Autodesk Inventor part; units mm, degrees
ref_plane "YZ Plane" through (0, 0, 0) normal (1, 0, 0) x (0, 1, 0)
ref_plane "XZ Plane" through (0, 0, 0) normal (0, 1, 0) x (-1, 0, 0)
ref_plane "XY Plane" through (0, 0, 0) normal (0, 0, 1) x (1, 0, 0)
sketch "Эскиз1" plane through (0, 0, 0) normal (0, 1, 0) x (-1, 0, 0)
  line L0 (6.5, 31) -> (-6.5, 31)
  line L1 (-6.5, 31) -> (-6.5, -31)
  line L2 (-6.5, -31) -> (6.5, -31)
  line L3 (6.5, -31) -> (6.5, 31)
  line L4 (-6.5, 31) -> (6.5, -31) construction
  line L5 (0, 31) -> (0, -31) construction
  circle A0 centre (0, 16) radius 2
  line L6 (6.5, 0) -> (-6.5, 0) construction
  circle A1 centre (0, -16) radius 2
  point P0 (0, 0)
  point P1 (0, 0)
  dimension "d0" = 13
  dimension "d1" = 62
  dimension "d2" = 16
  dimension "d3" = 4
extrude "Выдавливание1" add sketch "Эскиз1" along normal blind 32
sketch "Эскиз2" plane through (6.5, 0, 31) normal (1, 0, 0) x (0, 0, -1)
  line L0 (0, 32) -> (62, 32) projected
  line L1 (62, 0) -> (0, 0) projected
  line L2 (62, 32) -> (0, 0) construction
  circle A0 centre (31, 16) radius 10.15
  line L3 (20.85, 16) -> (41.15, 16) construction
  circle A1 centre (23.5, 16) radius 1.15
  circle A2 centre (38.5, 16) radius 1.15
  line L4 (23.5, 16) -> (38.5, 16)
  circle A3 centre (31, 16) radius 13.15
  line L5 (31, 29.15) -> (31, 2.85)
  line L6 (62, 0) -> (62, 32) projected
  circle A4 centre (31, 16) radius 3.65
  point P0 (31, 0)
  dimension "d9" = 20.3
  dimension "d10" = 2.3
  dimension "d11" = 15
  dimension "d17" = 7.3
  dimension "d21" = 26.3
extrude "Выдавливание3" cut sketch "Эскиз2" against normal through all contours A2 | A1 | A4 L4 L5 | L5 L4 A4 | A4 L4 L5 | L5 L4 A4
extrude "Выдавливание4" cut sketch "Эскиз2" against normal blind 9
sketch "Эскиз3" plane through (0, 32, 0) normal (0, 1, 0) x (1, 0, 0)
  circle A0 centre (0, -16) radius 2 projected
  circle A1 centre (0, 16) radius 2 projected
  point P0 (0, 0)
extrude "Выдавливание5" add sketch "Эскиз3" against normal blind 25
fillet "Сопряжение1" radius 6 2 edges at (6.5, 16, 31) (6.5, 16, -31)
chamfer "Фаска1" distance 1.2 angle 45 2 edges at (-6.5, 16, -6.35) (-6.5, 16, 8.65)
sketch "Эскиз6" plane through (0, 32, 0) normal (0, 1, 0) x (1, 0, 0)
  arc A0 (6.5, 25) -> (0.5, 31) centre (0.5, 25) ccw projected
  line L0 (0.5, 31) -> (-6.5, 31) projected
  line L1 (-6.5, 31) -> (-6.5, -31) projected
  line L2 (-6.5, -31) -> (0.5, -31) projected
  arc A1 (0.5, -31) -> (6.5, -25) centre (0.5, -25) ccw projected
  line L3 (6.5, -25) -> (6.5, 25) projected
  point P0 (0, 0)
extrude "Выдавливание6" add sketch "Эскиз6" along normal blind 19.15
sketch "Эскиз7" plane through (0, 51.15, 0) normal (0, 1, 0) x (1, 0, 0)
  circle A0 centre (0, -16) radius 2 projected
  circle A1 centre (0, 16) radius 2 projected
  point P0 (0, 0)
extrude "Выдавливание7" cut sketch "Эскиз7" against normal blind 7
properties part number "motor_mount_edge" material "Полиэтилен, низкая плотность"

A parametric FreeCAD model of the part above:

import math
import FreeCAD as App
import Part
import Sketcher
from FreeCAD import Vector


def edges_at(feature, points):
    """Names of the edges that pass closest to the given points."""
    edges = feature.Shape.Edges
    near = lambda p: min(range(len(edges)), key=lambda i: edges[i].distToShape(Part.Vertex(*p))[0])
    return sorted({f"Edge{near(p) + 1}" for p in points})


def add_polygon(sketch, points):
    """Adds a closed chain of lines whose ends are joined by coincident constraints."""
    first, n = sketch.GeometryCount, len(points)
    for a, b in zip(points, points[1:] + points[:1]):
        sketch.addGeometry(Part.LineSegment(App.Vector(*a, 0), App.Vector(*b, 0)), False)
    for i in range(n):
        sketch.addConstraint(Sketcher.Constraint("Coincident", first + i, 2, first + (i + 1) % n, 1))

doc = App.newDocument("Part")
body = doc.addObject("PartDesign::Body", "Body")

sketch1 = body.newObject("Sketcher::SketchObject", "Sketch")
sketch1.AttachmentSupport = (doc.getObject("XZ_Plane"), [""])
sketch1.MapMode = "FlatFace"
add_polygon(sketch1, [(-6.5, -31), (-6.5, 31), (6.5, 31), (6.5, -31)])
sketch1.addGeometry(Part.Circle(Vector(0, -16, 0), Vector(0, 0, 1), 2), False)
sketch1.addGeometry(Part.Circle(Vector(0, 16, 0), Vector(0, 0, 1), 2), False)
sketch1.addConstraint([
    Sketcher.Constraint("Vertical", 0),
    Sketcher.Constraint("Horizontal", 1),
    Sketcher.Constraint("Vertical", 2),
    Sketcher.Constraint("Horizontal", 3),
    Sketcher.Constraint("Equal", 4, 5),
    Sketcher.Constraint("Symmetric", 4, 3, 5, 3, -1, 1),
    Sketcher.Constraint("Symmetric", 0, 2, 2, 2, -1, 1),
    Sketcher.Constraint("PointOnObject", 4, 3, -2),
    Sketcher.Constraint("Diameter", 4, 4.0),
    Sketcher.Constraint("DistanceX", 1, 1, 1, 2, 13.0),
    Sketcher.Constraint("DistanceY", 0, 1, 0, 2, 62.0),
    Sketcher.Constraint("DistanceY", 4, 3, -1, 1, 16.0),
])
pad1 = body.newObject("PartDesign::Pad", "Pad")
pad1.Profile = sketch1
pad1.Length = 32
pad1.Reversed = True

sketch2 = body.newObject("Sketcher::SketchObject", "Sketch001")
sketch2.AttachmentSupport = (doc.getObject("YZ_Plane"), [""])
sketch2.MapMode = "FlatFace"
sketch2.AttachmentOffset = App.Placement(Vector(0, 0, 6.5), App.Rotation())
sketch2.addGeometry([
    Part.Circle(Vector(16, -7.5, 0), Vector(0, 0, 1), 1.1),
    Part.Circle(Vector(16, 7.5, 0), Vector(0, 0, 1), 1.1),
    Part.Circle(Vector(16, 0, 0), Vector(0, 0, 1), 3.6),
], False)
sketch2.addConstraint([
    Sketcher.Constraint("Equal", 0, 1),
    Sketcher.Constraint("Symmetric", 0, 3, 1, 3, -1),
    Sketcher.Constraint("PointOnObject", 2, 3, -1),
    Sketcher.Constraint("Vertical", 1, 3, 2, 3),
    Sketcher.Constraint("Diameter", 0, 2.3),
    Sketcher.Constraint("Diameter", 2, 7.3),
    Sketcher.Constraint("DistanceY", 0, 3, 1, 3, 15.0),
    Sketcher.Constraint("DistanceX", -1, 1, 0, 3, 16.0),
])
pocket1 = body.newObject("PartDesign::Pocket", "Pocket")
pocket1.Profile = sketch2
pocket1.Type = "ThroughAll"

sketch3 = body.newObject("Sketcher::SketchObject", "Sketch002")
sketch3.AttachmentSupport = (doc.getObject("YZ_Plane"), [""])
sketch3.MapMode = "FlatFace"
sketch3.AttachmentOffset = App.Placement(Vector(0, 0, 6.5), App.Rotation())
sketch3.addGeometry([
    Part.Circle(Vector(16, 0, 0), Vector(0, 0, 1), 13.2),
    Part.Circle(Vector(16, -7.5, 0), Vector(0, 0, 1), 1.1),
    Part.Circle(Vector(16, 7.5, 0), Vector(0, 0, 1), 1.1),
], False)
sketch3.addConstraint([
    Sketcher.Constraint("Equal", 1, 2),
    Sketcher.Constraint("Symmetric", 1, 3, 2, 3, -1),
    Sketcher.Constraint("PointOnObject", 0, 3, -1),
    Sketcher.Constraint("Vertical", 0, 3, 1, 3),
    Sketcher.Constraint("Diameter", 0, 26.3),
    Sketcher.Constraint("Diameter", 1, 2.3),
    Sketcher.Constraint("DistanceY", 1, 3, 2, 3, 15.0),
    Sketcher.Constraint("DistanceX", -1, 1, 0, 3, 16.0),
])
pocket2 = body.newObject("PartDesign::Pocket", "Pocket001")
pocket2.Profile = sketch3
pocket2.Length = 9

sketch4 = body.newObject("Sketcher::SketchObject", "Sketch003")
sketch4.AttachmentSupport = (doc.getObject("XZ_Plane"), [""])
sketch4.MapMode = "FlatFace"
sketch4.AttachmentOffset = App.Placement(Vector(0, 0, -32), App.Rotation())
sketch4.addGeometry([
    Part.Circle(Vector(0, 16, 0), Vector(0, 0, 1), 2),
    Part.Circle(Vector(0, -16, 0), Vector(0, 0, 1), 2),
], False)
sketch4.addConstraint([
    Sketcher.Constraint("Equal", 0, 1),
    Sketcher.Constraint("Symmetric", 0, 3, 1, 3, -1, 1),
    Sketcher.Constraint("PointOnObject", 0, 3, -2),
    Sketcher.Constraint("Diameter", 0, 4.0),
    Sketcher.Constraint("DistanceY", -1, 1, 0, 3, 16.0),
])
pad2 = body.newObject("PartDesign::Pad", "Pad001")
pad2.Profile = sketch4
pad2.Length = 25
doc.recompute()

fillet = body.newObject("PartDesign::Fillet", "Fillet")
fillet.Base = (pad2, edges_at(pad2, [(6.5, 16, 31), (6.5, 16, -31)]))
fillet.Radius = 6
doc.recompute()

chamfer = body.newObject("PartDesign::Chamfer", "Chamfer")
chamfer.Base = (fillet, edges_at(fillet, [(-6.5, 16, -6.35), (-6.5, 16, 8.65)]))
chamfer.Size = 1.2

sketch5 = body.newObject("Sketcher::SketchObject", "Sketch004")
sketch5.AttachmentSupport = (doc.getObject("XZ_Plane"), [""])
sketch5.MapMode = "FlatFace"
sketch5.AttachmentOffset = App.Placement(Vector(0, 0, -32), App.Rotation())
sketch5.addGeometry([
    Part.LineSegment(Vector(6, 25, 0), Vector(6, -25, 0)),
    Part.ArcOfCircle(Part.Circle(Vector(0, -25, 0), Vector(0, 0, 1), 6), math.radians(-90), math.radians(0)),
    Part.LineSegment(Vector(0, -31, 0), Vector(-6, -31, 0)),
    Part.LineSegment(Vector(-6, -31, 0), Vector(-6, 31, 0)),
    Part.LineSegment(Vector(-6, 31, 0), Vector(0, 31, 0)),
    Part.ArcOfCircle(Part.Circle(Vector(0, 25, 0), Vector(0, 0, 1), 6), math.radians(0), math.radians(90)),
], False)
sketch5.addConstraint([
    Sketcher.Constraint("Tangent", 0, 2, 1, 2),
    Sketcher.Constraint("Tangent", 1, 1, 2, 1),
    Sketcher.Constraint("Coincident", 2, 2, 3, 1),
    Sketcher.Constraint("Coincident", 3, 2, 4, 1),
    Sketcher.Constraint("Tangent", 4, 2, 5, 2),
    Sketcher.Constraint("Tangent", 5, 1, 0, 1),
    Sketcher.Constraint("Vertical", 0),
    Sketcher.Constraint("Horizontal", 2),
    Sketcher.Constraint("Vertical", 3),
    Sketcher.Constraint("Horizontal", 4),
    Sketcher.Constraint("Equal", 1, 5),
    Sketcher.Constraint("Radius", 1, 6.0),
    Sketcher.Constraint("DistanceX", 2, 2, 2, 1, 7.0),
    Sketcher.Constraint("DistanceY", 0, 2, 0, 1, 50.0),
    Sketcher.Constraint("DistanceY", 1, 3, -1, 1, 25.0),
    Sketcher.Constraint("DistanceX", -1, 1, 1, 3, 0.5),
])
pad3 = body.newObject("PartDesign::Pad", "Pad002")
pad3.Profile = sketch5
pad3.Length = 19.15
pad3.Reversed = True

sketch6 = body.newObject("Sketcher::SketchObject", "Sketch005")
sketch6.AttachmentSupport = (doc.getObject("XZ_Plane"), [""])
sketch6.MapMode = "FlatFace"
sketch6.AttachmentOffset = App.Placement(Vector(0, 0, -51.15), App.Rotation())
sketch6.addGeometry([
    Part.Circle(Vector(0, 16, 0), Vector(0, 0, 1), 2),
    Part.Circle(Vector(0, -16, 0), Vector(0, 0, 1), 2),
], False)
sketch6.addConstraint([
    Sketcher.Constraint("Equal", 0, 1),
    Sketcher.Constraint("Symmetric", 0, 3, 1, 3, -1, 1),
    Sketcher.Constraint("PointOnObject", 0, 3, -2),
    Sketcher.Constraint("Diameter", 0, 4.0),
    Sketcher.Constraint("DistanceY", -1, 1, 0, 3, 16.0),
])
pocket3 = body.newObject("PartDesign::Pocket", "Pocket002")
pocket3.Profile = sketch6
pocket3.Length = 7
pocket3.Reversed = True

doc.recompute()
